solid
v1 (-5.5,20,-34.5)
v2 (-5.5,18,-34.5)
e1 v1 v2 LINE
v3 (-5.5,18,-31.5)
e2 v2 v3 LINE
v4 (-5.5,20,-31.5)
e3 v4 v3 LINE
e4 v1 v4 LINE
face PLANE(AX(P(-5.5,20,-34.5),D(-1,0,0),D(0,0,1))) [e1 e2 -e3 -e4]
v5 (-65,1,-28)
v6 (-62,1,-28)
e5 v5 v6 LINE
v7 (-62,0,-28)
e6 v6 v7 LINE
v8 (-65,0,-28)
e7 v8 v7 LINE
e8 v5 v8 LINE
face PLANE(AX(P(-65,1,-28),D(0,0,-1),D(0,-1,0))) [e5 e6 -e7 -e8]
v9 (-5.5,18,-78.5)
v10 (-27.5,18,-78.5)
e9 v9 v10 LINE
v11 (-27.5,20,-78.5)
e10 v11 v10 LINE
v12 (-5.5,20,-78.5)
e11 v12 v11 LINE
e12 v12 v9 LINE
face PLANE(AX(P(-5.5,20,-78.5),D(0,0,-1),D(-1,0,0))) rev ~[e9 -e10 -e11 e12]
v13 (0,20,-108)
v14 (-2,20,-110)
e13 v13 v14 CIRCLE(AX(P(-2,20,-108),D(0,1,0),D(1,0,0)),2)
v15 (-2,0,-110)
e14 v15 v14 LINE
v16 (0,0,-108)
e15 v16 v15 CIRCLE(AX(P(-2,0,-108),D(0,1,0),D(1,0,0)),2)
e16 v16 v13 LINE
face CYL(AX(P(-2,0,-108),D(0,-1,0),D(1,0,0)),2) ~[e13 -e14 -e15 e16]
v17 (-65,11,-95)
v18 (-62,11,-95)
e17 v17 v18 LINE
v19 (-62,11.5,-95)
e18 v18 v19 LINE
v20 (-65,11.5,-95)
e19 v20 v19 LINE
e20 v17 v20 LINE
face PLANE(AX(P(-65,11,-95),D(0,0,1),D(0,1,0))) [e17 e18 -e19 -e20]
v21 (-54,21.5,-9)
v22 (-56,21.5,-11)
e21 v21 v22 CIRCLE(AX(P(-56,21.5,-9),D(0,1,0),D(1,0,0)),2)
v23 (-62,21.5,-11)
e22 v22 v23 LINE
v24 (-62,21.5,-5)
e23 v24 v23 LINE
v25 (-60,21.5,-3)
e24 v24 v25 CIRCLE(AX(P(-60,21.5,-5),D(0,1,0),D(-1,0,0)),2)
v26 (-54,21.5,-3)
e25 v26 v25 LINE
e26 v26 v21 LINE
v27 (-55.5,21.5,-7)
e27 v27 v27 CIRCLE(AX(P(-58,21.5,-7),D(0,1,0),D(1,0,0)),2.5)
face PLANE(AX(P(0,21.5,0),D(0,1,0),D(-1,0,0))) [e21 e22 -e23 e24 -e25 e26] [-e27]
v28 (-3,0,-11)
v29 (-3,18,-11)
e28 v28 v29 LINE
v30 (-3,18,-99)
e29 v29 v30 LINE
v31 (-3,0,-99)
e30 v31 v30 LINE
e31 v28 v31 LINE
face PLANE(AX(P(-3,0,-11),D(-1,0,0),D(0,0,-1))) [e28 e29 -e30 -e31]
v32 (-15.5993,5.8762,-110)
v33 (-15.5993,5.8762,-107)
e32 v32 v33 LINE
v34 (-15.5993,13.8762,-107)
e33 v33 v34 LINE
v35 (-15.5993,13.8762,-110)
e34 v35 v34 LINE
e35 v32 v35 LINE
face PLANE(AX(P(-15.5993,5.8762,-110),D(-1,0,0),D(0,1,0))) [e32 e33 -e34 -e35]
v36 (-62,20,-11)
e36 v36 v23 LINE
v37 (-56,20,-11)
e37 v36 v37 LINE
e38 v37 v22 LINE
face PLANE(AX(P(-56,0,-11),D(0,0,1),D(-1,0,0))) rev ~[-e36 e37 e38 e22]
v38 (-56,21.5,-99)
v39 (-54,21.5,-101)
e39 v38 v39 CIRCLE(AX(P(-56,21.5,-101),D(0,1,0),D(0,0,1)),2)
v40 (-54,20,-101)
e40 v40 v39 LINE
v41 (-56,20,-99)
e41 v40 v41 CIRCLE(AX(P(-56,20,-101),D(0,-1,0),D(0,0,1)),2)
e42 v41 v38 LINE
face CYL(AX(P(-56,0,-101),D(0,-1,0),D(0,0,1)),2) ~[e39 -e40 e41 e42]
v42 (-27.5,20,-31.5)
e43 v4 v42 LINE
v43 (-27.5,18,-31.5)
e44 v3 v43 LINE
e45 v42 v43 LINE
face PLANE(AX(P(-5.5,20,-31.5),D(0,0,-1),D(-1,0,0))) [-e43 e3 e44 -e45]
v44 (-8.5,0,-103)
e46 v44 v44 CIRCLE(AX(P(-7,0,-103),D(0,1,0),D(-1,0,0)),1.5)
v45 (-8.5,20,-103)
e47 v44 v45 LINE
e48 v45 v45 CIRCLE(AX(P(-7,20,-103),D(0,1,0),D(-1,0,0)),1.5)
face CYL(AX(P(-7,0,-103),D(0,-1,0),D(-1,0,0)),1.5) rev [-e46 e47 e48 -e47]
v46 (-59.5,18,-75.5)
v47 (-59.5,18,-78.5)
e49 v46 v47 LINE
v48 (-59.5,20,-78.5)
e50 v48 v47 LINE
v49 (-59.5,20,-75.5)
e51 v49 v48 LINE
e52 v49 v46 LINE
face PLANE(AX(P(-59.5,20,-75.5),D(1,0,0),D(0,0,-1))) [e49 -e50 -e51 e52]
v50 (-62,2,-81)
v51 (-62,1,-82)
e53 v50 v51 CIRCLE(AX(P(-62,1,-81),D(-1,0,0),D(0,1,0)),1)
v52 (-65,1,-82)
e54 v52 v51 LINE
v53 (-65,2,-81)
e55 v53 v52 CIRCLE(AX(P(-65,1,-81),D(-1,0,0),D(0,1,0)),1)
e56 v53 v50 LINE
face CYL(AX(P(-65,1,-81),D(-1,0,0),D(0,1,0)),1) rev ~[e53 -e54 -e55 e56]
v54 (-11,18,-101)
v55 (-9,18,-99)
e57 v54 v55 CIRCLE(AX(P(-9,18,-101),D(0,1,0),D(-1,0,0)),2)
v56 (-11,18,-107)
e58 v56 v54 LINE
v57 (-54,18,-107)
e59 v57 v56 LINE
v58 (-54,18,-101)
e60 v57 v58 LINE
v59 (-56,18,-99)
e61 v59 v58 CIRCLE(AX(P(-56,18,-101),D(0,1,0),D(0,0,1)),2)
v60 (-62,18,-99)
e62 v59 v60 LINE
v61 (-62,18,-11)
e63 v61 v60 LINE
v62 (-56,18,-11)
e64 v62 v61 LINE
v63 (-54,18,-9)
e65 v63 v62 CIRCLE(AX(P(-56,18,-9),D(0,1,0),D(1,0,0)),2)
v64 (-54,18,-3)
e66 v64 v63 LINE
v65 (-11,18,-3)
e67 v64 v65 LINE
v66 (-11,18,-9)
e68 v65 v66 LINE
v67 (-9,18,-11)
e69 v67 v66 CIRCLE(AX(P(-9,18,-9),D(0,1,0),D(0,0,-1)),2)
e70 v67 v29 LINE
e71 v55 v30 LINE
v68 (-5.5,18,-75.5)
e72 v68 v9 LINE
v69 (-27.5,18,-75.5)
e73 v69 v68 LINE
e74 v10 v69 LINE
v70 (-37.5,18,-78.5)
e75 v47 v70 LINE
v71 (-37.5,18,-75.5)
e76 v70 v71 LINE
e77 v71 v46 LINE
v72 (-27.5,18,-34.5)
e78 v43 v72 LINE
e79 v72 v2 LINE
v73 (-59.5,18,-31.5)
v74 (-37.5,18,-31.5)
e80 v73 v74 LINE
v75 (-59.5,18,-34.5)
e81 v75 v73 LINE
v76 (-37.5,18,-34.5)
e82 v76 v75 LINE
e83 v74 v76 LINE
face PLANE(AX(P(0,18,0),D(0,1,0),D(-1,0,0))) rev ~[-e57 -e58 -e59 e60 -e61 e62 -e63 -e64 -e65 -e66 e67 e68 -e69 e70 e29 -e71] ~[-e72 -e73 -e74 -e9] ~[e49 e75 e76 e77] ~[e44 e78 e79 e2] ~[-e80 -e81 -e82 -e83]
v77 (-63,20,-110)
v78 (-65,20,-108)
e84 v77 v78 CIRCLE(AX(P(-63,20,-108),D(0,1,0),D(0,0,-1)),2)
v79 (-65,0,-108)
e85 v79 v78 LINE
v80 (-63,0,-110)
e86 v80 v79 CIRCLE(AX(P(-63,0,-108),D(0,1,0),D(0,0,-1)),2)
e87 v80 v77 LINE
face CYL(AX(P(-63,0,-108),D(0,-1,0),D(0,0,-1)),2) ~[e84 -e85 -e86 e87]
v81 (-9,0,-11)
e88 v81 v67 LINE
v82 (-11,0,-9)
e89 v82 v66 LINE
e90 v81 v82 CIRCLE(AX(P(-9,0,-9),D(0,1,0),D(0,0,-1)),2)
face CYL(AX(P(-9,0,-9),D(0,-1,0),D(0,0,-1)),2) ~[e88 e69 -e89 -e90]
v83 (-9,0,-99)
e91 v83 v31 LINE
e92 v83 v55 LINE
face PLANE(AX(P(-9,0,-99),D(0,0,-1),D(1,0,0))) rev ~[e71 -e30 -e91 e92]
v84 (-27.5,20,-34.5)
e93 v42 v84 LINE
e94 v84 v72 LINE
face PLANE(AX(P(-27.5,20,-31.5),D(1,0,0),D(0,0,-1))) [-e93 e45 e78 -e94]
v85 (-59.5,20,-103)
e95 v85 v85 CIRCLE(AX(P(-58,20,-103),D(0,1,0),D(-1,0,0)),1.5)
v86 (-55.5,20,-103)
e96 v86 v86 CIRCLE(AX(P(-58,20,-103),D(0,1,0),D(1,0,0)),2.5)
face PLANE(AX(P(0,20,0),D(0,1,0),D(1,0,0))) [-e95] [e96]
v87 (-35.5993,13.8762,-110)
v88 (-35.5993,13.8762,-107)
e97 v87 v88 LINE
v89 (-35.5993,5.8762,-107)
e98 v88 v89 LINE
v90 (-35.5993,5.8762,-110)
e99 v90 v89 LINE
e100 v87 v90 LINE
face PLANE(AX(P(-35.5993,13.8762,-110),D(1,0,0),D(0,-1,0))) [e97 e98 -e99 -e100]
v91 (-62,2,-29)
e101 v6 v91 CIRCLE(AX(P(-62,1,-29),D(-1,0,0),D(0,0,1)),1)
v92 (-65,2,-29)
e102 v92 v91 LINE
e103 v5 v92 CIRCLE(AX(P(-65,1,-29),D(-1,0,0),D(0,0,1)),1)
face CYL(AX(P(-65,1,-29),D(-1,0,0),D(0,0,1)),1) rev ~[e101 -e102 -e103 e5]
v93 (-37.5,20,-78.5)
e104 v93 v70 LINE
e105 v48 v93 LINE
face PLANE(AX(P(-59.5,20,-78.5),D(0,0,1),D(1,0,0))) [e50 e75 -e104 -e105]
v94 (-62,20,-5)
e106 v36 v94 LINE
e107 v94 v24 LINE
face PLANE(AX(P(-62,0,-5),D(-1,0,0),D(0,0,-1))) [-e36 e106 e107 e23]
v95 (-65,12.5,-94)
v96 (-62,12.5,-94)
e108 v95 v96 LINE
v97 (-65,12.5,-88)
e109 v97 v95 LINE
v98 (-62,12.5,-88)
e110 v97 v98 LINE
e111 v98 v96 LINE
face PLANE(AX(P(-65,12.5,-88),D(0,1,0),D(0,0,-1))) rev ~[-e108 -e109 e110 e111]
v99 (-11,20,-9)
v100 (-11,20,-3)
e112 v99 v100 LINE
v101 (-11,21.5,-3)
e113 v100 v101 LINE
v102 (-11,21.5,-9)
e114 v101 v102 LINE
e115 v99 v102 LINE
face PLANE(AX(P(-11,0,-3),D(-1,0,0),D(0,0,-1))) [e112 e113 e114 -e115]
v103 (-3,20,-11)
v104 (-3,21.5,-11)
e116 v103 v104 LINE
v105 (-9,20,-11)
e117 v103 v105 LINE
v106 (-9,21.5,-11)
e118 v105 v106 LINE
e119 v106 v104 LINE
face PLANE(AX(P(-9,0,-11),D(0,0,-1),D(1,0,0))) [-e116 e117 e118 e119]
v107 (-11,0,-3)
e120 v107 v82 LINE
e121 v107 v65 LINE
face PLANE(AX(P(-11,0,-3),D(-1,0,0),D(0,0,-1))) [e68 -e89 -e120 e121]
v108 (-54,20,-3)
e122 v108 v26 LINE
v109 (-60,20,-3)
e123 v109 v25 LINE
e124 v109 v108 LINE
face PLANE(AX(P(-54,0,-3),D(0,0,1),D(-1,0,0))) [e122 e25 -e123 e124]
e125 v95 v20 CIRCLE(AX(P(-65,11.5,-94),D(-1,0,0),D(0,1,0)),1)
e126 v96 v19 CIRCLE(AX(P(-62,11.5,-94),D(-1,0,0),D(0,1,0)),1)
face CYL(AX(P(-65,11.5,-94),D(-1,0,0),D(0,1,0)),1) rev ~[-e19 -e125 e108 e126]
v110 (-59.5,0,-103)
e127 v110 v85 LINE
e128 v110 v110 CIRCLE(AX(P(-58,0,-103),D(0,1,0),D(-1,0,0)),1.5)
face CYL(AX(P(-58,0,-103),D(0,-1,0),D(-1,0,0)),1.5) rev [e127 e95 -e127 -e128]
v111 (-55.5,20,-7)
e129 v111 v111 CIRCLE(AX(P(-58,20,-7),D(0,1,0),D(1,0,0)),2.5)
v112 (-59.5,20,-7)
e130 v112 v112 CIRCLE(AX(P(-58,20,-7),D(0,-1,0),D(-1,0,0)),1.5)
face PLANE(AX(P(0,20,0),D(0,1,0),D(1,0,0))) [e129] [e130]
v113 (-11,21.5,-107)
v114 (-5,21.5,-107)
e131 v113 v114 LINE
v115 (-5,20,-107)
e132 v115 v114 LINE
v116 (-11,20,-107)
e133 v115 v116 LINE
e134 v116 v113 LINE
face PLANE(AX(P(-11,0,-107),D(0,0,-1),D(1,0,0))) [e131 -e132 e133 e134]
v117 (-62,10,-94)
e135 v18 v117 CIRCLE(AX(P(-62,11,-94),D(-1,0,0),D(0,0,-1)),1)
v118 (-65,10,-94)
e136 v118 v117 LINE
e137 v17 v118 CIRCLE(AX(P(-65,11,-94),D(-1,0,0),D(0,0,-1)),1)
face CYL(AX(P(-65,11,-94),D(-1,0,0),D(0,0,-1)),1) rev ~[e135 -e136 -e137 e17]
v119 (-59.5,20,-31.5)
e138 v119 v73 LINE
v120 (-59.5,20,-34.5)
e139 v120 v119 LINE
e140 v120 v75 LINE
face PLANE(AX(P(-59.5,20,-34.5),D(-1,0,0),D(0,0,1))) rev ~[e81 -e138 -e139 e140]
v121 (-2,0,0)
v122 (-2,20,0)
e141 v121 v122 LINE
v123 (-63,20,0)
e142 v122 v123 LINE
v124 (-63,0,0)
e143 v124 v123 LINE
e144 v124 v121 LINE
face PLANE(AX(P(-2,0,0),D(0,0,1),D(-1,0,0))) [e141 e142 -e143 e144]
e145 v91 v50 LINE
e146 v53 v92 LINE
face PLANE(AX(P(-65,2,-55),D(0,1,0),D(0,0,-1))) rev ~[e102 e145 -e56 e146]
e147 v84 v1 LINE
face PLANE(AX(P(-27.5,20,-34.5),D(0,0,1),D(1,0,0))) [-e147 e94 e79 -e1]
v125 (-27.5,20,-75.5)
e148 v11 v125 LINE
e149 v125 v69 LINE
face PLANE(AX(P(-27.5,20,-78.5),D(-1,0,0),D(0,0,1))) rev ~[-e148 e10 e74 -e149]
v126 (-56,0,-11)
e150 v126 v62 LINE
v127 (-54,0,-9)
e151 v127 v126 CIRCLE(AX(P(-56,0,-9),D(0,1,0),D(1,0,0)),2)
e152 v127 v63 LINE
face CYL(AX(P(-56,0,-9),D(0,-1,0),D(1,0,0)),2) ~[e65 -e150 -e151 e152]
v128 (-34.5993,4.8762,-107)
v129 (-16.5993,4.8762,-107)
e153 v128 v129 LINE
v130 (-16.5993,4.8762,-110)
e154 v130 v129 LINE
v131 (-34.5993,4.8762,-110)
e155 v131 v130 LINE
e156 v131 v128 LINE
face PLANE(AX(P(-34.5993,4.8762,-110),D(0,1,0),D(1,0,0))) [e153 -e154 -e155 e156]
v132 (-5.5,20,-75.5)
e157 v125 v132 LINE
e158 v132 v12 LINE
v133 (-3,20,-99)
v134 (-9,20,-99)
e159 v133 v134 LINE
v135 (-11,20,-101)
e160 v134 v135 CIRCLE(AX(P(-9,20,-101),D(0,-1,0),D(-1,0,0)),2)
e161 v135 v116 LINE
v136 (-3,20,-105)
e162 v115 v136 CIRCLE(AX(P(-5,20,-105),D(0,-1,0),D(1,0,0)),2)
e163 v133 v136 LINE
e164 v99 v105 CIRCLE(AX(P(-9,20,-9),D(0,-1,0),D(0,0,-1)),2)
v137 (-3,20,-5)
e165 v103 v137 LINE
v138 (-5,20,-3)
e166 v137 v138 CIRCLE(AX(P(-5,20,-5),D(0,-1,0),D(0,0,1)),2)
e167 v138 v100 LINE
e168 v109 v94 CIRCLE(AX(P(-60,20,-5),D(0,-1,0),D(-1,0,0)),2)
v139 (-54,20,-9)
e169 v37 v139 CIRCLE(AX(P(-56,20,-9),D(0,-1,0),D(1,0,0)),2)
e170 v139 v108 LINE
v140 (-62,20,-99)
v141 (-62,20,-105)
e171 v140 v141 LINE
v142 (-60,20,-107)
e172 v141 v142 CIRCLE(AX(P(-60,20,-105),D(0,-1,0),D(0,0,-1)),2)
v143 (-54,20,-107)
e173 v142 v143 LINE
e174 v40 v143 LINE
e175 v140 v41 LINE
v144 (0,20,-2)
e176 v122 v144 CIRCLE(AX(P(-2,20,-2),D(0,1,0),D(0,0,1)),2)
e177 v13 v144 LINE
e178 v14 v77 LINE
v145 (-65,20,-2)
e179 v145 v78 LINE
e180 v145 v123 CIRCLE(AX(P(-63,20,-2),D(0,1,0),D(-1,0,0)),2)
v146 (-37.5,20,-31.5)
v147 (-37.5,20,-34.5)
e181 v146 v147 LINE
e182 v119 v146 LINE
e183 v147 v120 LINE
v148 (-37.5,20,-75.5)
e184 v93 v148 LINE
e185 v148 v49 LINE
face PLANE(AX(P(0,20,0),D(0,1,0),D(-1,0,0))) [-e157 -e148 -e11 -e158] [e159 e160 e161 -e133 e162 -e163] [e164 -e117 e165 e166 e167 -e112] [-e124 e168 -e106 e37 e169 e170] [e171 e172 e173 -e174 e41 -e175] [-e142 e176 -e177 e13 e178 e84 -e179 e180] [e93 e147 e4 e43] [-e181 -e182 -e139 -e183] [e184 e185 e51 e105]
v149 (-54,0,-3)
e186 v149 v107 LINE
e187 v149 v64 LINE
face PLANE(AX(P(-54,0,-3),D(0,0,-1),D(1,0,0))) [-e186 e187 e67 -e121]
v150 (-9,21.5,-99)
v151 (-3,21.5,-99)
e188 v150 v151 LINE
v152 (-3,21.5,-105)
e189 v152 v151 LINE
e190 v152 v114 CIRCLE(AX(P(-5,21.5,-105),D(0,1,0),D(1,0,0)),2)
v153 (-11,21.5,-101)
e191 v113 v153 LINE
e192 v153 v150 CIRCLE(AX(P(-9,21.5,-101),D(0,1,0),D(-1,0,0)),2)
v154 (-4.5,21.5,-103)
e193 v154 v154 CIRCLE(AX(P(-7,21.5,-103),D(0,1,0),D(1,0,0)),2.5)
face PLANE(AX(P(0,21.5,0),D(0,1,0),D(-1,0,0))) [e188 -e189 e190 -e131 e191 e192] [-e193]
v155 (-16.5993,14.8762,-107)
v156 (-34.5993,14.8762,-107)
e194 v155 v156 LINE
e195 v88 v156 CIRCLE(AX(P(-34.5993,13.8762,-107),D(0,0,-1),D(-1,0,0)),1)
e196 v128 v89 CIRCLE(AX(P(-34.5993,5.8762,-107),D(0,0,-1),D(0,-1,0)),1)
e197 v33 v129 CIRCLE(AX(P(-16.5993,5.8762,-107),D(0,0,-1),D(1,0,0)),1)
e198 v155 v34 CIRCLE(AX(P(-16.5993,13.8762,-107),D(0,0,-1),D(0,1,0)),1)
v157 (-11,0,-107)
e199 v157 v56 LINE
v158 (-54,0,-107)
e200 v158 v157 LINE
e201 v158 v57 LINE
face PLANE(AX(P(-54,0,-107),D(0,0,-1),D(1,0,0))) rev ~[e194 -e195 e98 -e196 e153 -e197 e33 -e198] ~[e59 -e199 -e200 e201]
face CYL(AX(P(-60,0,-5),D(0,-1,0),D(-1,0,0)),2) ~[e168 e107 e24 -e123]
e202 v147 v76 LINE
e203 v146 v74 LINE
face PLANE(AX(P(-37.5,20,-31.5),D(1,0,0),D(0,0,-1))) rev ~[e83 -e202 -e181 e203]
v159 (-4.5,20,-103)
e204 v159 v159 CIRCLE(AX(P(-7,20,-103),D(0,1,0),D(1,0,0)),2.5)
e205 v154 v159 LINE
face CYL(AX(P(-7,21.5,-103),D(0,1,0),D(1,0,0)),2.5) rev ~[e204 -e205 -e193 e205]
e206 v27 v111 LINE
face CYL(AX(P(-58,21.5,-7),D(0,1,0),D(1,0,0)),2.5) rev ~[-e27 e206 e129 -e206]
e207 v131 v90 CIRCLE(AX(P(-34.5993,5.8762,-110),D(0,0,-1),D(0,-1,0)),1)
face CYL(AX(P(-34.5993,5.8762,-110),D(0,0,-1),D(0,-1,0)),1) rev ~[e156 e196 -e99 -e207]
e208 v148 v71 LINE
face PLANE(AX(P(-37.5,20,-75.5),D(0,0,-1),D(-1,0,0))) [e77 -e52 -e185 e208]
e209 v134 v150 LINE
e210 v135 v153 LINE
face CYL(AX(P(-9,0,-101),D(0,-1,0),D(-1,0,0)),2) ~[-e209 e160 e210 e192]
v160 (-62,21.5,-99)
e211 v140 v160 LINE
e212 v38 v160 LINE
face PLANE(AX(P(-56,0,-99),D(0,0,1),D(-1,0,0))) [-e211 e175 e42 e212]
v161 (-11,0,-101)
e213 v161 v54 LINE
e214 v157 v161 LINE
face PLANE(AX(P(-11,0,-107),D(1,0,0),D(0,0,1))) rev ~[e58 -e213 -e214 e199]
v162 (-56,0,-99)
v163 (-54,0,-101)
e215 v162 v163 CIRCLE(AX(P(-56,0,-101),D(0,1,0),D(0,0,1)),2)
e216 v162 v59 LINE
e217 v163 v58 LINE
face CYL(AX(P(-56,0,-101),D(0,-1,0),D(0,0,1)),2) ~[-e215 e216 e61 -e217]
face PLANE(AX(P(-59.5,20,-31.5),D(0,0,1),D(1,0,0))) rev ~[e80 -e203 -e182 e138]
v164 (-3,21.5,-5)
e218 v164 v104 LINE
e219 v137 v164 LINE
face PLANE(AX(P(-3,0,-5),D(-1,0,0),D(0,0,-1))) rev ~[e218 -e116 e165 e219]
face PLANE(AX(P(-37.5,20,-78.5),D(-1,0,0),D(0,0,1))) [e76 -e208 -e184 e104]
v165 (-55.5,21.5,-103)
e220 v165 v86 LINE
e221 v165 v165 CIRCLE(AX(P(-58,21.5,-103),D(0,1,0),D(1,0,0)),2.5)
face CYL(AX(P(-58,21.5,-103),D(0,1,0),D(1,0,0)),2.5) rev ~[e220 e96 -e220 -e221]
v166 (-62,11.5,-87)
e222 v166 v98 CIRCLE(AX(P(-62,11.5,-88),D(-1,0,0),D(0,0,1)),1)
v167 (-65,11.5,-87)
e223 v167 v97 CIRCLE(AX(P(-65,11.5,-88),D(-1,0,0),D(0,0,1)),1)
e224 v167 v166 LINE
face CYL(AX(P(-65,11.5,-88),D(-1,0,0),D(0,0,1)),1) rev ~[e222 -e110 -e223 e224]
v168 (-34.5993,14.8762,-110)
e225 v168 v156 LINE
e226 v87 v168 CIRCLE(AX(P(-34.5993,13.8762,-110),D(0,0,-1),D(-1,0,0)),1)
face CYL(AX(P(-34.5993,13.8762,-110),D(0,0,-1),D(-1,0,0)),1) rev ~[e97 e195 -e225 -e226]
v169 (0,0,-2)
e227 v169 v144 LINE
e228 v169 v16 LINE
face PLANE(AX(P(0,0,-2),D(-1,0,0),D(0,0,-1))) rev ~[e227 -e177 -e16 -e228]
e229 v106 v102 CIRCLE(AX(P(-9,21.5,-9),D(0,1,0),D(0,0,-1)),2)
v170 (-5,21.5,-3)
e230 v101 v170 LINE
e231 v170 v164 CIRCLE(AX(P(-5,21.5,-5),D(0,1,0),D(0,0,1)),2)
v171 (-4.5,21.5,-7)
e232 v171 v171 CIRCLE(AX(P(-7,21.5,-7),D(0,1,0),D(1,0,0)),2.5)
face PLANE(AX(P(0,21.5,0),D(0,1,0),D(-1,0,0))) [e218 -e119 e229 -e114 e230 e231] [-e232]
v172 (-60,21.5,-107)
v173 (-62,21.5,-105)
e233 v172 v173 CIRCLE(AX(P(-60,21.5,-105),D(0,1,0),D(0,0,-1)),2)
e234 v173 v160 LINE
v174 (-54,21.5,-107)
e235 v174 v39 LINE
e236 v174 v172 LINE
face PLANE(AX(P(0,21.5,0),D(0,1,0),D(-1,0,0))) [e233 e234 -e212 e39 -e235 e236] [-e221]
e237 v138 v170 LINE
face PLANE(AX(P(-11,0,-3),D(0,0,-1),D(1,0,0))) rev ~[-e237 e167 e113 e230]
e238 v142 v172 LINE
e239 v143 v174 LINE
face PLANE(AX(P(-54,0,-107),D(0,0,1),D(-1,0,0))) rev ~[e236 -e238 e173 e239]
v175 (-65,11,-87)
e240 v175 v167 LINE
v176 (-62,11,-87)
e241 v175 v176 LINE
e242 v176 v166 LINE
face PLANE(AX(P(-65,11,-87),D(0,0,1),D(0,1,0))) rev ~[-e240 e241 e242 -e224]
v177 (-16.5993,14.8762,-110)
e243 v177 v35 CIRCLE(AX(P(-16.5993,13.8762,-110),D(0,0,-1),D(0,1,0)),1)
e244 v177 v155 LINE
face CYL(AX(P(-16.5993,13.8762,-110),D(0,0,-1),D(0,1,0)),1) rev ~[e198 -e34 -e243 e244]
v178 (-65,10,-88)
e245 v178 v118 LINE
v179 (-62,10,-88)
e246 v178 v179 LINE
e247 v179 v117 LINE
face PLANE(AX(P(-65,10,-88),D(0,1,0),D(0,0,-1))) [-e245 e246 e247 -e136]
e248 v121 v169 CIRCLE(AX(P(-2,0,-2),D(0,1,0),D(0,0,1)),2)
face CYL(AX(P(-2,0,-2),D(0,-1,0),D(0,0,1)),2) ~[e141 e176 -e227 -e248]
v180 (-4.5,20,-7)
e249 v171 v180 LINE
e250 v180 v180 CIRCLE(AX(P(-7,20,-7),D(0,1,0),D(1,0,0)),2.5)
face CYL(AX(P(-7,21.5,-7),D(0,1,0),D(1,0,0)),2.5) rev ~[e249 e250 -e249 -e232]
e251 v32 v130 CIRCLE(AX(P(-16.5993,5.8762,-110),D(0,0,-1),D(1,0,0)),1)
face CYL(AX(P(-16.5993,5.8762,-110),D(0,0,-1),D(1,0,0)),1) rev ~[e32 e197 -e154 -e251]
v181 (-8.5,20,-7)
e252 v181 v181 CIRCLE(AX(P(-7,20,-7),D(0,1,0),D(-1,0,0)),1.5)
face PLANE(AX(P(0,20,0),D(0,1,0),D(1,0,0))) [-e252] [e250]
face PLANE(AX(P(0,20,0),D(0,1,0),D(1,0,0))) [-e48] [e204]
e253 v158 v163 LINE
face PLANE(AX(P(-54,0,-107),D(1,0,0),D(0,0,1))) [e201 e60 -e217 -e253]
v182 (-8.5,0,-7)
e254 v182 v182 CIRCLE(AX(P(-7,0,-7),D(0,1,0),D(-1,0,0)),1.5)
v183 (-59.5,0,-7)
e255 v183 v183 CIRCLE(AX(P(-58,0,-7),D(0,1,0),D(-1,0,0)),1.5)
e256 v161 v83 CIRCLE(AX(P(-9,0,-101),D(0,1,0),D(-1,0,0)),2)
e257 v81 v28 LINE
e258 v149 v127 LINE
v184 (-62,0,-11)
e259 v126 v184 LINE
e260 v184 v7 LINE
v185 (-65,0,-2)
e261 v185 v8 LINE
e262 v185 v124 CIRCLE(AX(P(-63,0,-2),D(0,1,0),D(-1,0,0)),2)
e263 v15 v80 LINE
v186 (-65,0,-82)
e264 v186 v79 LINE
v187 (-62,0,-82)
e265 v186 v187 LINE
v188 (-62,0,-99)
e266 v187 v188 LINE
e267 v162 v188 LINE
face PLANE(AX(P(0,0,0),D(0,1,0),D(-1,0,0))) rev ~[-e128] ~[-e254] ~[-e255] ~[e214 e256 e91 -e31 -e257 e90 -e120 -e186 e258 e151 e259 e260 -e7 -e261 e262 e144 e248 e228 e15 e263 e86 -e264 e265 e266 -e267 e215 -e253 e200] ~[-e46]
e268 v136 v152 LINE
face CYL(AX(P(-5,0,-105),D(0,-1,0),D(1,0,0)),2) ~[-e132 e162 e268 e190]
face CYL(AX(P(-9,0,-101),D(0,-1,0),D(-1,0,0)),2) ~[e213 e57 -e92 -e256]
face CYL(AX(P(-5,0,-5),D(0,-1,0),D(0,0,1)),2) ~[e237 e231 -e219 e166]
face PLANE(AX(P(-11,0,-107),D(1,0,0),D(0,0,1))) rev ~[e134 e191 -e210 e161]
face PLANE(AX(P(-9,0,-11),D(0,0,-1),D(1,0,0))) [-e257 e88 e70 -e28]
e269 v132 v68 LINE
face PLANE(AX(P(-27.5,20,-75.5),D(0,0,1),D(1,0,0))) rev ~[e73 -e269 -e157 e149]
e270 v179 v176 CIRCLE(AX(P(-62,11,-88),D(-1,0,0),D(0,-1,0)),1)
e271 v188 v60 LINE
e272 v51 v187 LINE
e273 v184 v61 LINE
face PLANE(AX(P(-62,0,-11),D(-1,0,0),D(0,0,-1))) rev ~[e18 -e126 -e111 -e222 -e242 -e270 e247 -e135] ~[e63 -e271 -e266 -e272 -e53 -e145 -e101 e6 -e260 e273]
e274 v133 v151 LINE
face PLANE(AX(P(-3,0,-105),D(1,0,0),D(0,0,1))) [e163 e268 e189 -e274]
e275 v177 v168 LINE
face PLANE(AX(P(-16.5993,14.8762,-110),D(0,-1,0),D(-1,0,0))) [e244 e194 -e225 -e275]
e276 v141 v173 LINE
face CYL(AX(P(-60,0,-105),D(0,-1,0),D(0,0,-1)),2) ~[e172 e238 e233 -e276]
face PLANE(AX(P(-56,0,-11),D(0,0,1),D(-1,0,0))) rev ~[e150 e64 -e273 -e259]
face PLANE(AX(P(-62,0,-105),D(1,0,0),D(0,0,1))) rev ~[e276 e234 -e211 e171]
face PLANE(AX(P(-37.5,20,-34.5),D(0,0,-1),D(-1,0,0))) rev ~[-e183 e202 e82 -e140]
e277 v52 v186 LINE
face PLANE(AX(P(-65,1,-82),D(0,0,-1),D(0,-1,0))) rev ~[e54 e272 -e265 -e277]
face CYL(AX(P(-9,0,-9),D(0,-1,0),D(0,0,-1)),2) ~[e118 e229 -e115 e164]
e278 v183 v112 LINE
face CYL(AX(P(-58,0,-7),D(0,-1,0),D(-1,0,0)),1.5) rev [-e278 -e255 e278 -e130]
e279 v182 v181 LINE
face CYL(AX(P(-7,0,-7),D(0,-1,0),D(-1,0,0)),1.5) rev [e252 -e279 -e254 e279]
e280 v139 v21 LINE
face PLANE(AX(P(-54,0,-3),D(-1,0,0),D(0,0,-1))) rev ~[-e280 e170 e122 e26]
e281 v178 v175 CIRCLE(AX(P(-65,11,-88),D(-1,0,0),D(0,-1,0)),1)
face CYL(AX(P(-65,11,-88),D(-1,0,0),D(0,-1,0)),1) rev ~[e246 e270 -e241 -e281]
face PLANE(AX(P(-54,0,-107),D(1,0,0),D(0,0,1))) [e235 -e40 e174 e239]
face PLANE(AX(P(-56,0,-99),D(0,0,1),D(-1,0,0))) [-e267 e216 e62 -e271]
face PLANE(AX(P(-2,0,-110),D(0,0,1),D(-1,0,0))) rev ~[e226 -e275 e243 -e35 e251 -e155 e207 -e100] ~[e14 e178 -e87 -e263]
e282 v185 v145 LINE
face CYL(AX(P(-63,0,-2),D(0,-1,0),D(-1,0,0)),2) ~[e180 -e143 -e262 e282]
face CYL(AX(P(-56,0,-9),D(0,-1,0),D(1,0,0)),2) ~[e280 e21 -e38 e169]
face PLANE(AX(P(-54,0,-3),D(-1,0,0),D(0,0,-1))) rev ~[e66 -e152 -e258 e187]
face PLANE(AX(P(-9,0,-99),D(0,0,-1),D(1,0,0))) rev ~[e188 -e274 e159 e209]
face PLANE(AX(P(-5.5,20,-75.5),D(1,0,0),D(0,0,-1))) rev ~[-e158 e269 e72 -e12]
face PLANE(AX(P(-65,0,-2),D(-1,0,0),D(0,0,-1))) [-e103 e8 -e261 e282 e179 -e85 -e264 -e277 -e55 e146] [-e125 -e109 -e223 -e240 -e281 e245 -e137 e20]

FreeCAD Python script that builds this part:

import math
import FreeCAD as App
import Part
import Sketcher

doc = App.newDocument("Part")
body = doc.addObject("PartDesign::Body", "Body")

sketch1 = body.newObject("Sketcher::SketchObject", "Sketch")
sketch1.AttachmentSupport = (doc.getObject("XZ_Plane"), [""])
sketch1.MapMode = "FlatFace"
sketch1.addGeometry([
    Part.ArcOfCircle(Part.Circle(App.Vector(-2, -2, 0), App.Vector(0, 0, 1), 2), math.radians(0), math.radians(90)),
    Part.LineSegment(App.Vector(0, -2, 0), App.Vector(0, -108, 0)),
    Part.ArcOfCircle(Part.Circle(App.Vector(-2, -108, 0), App.Vector(0, 0, 1), 2), math.radians(-90), math.radians(0)),
    Part.LineSegment(App.Vector(-2, -110, 0), App.Vector(-63, -110, 0)),
    Part.ArcOfCircle(Part.Circle(App.Vector(-63, -108, 0), App.Vector(0, 0, 1), 2), math.radians(180), math.radians(270)),
    Part.LineSegment(App.Vector(-65, -108, 0), App.Vector(-65, -2, 0)),
    Part.ArcOfCircle(Part.Circle(App.Vector(-63, -2, 0), App.Vector(0, 0, 1), 2), math.radians(90), math.radians(180)),
    Part.LineSegment(App.Vector(-63, 0, 0), App.Vector(-2, 0, 0)),
], False)
sketch1.addConstraint([
    Sketcher.Constraint("Tangent", 0, 1, 1, 1),
    Sketcher.Constraint("Tangent", 1, 2, 2, 2),
    Sketcher.Constraint("Tangent", 2, 1, 3, 1),
    Sketcher.Constraint("Tangent", 3, 2, 4, 2),
    Sketcher.Constraint("Tangent", 4, 1, 5, 1),
    Sketcher.Constraint("Tangent", 5, 2, 6, 2),
    Sketcher.Constraint("Tangent", 6, 1, 7, 1),
    Sketcher.Constraint("Tangent", 7, 2, 0, 2),
    Sketcher.Constraint("Vertical", 1),
    Sketcher.Constraint("Horizontal", 3),
    Sketcher.Constraint("Vertical", 5),
    Sketcher.Constraint("Horizontal", 7),
    Sketcher.Constraint("Equal", 0, 2),
    Sketcher.Constraint("Equal", 2, 4),
    Sketcher.Constraint("Equal", 4, 6),
    Sketcher.Constraint("PointOnObject", 0, 1, -2),
    Sketcher.Constraint("PointOnObject", 6, 1, -1),
    Sketcher.Constraint("Radius", 0, 2.0),
    Sketcher.Constraint("DistanceY", 2, 1, -1, 1, 110.0),
    Sketcher.Constraint("DistanceX", 4, 1, -1, 1, 65.0),
])
pad1 = body.newObject("PartDesign::Pad", "Pad")
pad1.Profile = sketch1
pad1.Length = 20
pad1.Reversed = True

sketch2 = body.newObject("Sketcher::SketchObject", "Sketch001")
sketch2.AttachmentSupport = (doc.getObject("XZ_Plane"), [""])
sketch2.MapMode = "FlatFace"
sketch2.addGeometry([
    Part.LineSegment(App.Vector(-54, -3, 0), App.Vector(-11, -3, 0)),
    Part.LineSegment(App.Vector(-11, -3, 0), App.Vector(-11, -9, 0)),
    Part.ArcOfCircle(Part.Circle(App.Vector(-9, -9, 0), App.Vector(0, 0, 1), 2), math.radians(180), math.radians(270)),
    Part.LineSegment(App.Vector(-9, -11, 0), App.Vector(-3, -11, 0)),
    Part.LineSegment(App.Vector(-3, -11, 0), App.Vector(-3, -99, 0)),
    Part.LineSegment(App.Vector(-3, -99, 0), App.Vector(-9, -99, 0)),
    Part.ArcOfCircle(Part.Circle(App.Vector(-9, -101, 0), App.Vector(0, 0, 1), 2), math.radians(90), math.radians(180)),
    Part.LineSegment(App.Vector(-11, -101, 0), App.Vector(-11, -107, 0)),
    Part.LineSegment(App.Vector(-11, -107, 0), App.Vector(-54, -107, 0)),
    Part.LineSegment(App.Vector(-54, -107, 0), App.Vector(-54, -101, 0)),
    Part.ArcOfCircle(Part.Circle(App.Vector(-56, -101, 0), App.Vector(0, 0, 1), 2), math.radians(0), math.radians(90)),
    Part.LineSegment(App.Vector(-56, -99, 0), App.Vector(-62, -99, 0)),
    Part.LineSegment(App.Vector(-62, -99, 0), App.Vector(-62, -11, 0)),
    Part.LineSegment(App.Vector(-62, -11, 0), App.Vector(-56, -11, 0)),
    Part.ArcOfCircle(Part.Circle(App.Vector(-56, -9, 0), App.Vector(0, 0, 1), 2), math.radians(-90), math.radians(0)),
    Part.LineSegment(App.Vector(-54, -9, 0), App.Vector(-54, -3, 0)),
], False)
sketch2.addConstraint([
    Sketcher.Constraint("Coincident", 0, 2, 1, 1),
    Sketcher.Constraint("Tangent", 1, 2, 2, 1),
    Sketcher.Constraint("Tangent", 2, 2, 3, 1),
    Sketcher.Constraint("Coincident", 3, 2, 4, 1),
    Sketcher.Constraint("Coincident", 4, 2, 5, 1),
    Sketcher.Constraint("Tangent", 5, 2, 6, 1),
    Sketcher.Constraint("Tangent", 6, 2, 7, 1),
    Sketcher.Constraint("Coincident", 7, 2, 8, 1),
    Sketcher.Constraint("Coincident", 8, 2, 9, 1),
    Sketcher.Constraint("Tangent", 9, 2, 10, 1),
    Sketcher.Constraint("Tangent", 10, 2, 11, 1),
    Sketcher.Constraint("Coincident", 11, 2, 12, 1),
    Sketcher.Constraint("Coincident", 12, 2, 13, 1),
    Sketcher.Constraint("Tangent", 13, 2, 14, 1),
    Sketcher.Constraint("Tangent", 14, 2, 15, 1),
    Sketcher.Constraint("Coincident", 15, 2, 0, 1),
    Sketcher.Constraint("Horizontal", 0),
    Sketcher.Constraint("Vertical", 1),
    Sketcher.Constraint("Horizontal", 3),
    Sketcher.Constraint("Vertical", 4),
    Sketcher.Constraint("Horizontal", 5),
    Sketcher.Constraint("Vertical", 7),
    Sketcher.Constraint("Horizontal", 8),
    Sketcher.Constraint("Vertical", 9),
    Sketcher.Constraint("Horizontal", 11),
    Sketcher.Constraint("Vertical", 12),
    Sketcher.Constraint("Horizontal", 13),
    Sketcher.Constraint("Vertical", 15),
    Sketcher.Constraint("Equal", 2, 6),
    Sketcher.Constraint("Equal", 6, 10),
    Sketcher.Constraint("Equal", 10, 14),
    Sketcher.Constraint("Horizontal", 6, 3, 10, 3),
    Sketcher.Constraint("Horizontal", 2, 3, 14, 3),
    Sketcher.Constraint("Vertical", 2, 3, 6, 3),
    Sketcher.Constraint("Vertical", 10, 3, 14, 3),
    Sketcher.Constraint("Equal", 5, 11),
    Sketcher.Constraint("Equal", 13, 1),
    Sketcher.Constraint("Equal", 1, 7),
    Sketcher.Constraint("Radius", 2, 2.0),
    Sketcher.Constraint("DistanceY", 0, 2, -1, 1, 3.0),
    Sketcher.Constraint("DistanceX", 3, 2, -1, 1, 3.0),
    Sketcher.Constraint("DistanceX", 0, 1, 0, 2, 43.0),
    Sketcher.Constraint("DistanceX", 3, 1, 3, 2, 6.0),
    Sketcher.Constraint("DistanceY", 4, 2, 4, 1, 88.0),
])
pocket1 = body.newObject("PartDesign::Pocket", "Pocket")
pocket1.Profile = sketch2
pocket1.Length = 18

sketch3 = body.newObject("Sketcher::SketchObject", "Sketch002")
sketch3.AttachmentSupport = (doc.getObject("XZ_Plane"), [""])
sketch3.MapMode = "FlatFace"
sketch3.addGeometry([
    Part.Circle(App.Vector(-7, -7, 0), App.Vector(0, 0, 1), 1.5),
    Part.Circle(App.Vector(-7, -103, 0), App.Vector(0, 0, 1), 1.5),
    Part.Circle(App.Vector(-58, -7, 0), App.Vector(0, 0, 1), 1.5),
    Part.Circle(App.Vector(-58, -103, 0), App.Vector(0, 0, 1), 1.5),
], False)
sketch3.addConstraint([
    Sketcher.Constraint("Equal", 0, 1),
    Sketcher.Constraint("Equal", 1, 2),
    Sketcher.Constraint("Equal", 2, 3),
    Sketcher.Constraint("Horizontal", 0, 3, 2, 3),
    Sketcher.Constraint("Horizontal", 1, 3, 3, 3),
    Sketcher.Constraint("Vertical", 0, 3, 1, 3),
    Sketcher.Constraint("Vertical", 2, 3, 3, 3),
    Sketcher.Constraint("Diameter", 0, 3.0),
    Sketcher.Constraint("DistanceX", 0, 3, -1, 1, 7.0),
    Sketcher.Constraint("DistanceY", 0, 3, -1, 1, 7.0),
    Sketcher.Constraint("DistanceY", 1, 3, -1, 1, 103.0),
    Sketcher.Constraint("DistanceX", 2, 3, -1, 1, 58.0),
])
pocket2 = body.newObject("PartDesign::Pocket", "Pocket001")
pocket2.Profile = sketch3
pocket2.Length = 20

sketch4 = body.newObject("Sketcher::SketchObject", "Sketch003")
sketch4.AttachmentSupport = (doc.getObject("XZ_Plane"), [""])
sketch4.MapMode = "FlatFace"
sketch4.addGeometry([
    Part.LineSegment(App.Vector(-11, -3, 0), App.Vector(-5, -3, 0)),
    Part.ArcOfCircle(Part.Circle(App.Vector(-5, -5, 0), App.Vector(0, 0, 1), 2), math.radians(0), math.radians(90)),
    Part.LineSegment(App.Vector(-3, -5, 0), App.Vector(-3, -11, 0)),
    Part.LineSegment(App.Vector(-3, -11, 0), App.Vector(-9, -11, 0)),
    Part.ArcOfCircle(Part.Circle(App.Vector(-9, -9, 0), App.Vector(0, 0, 1), 2), math.radians(180), math.radians(270)),
    Part.LineSegment(App.Vector(-11, -9, 0), App.Vector(-11, -3, 0)),
    Part.Circle(App.Vector(-7, -7, 0), App.Vector(0, 0, 1), 1.5),
    Part.LineSegment(App.Vector(-60, -3, 0), App.Vector(-54, -3, 0)),
    Part.LineSegment(App.Vector(-54, -3, 0), App.Vector(-54, -9, 0)),
    Part.ArcOfCircle(Part.Circle(App.Vector(-56, -9, 0), App.Vector(0, 0, 1), 2), math.radians(-90), math.radians(0)),
    Part.LineSegment(App.Vector(-56, -11, 0), App.Vector(-62, -11, 0)),
    Part.LineSegment(App.Vector(-62, -11, 0), App.Vector(-62, -5, 0)),
    Part.ArcOfCircle(Part.Circle(App.Vector(-60, -5, 0), App.Vector(0, 0, 1), 2), math.radians(90), math.radians(180)),
    Part.Circle(App.Vector(-58, -7, 0), App.Vector(0, 0, 1), 1.5),
    Part.LineSegment(App.Vector(-9, -99, 0), App.Vector(-3, -99, 0)),
    Part.LineSegment(App.Vector(-3, -99, 0), App.Vector(-3, -105, 0)),
    Part.ArcOfCircle(Part.Circle(App.Vector(-5, -105, 0), App.Vector(0, 0, 1), 2), math.radians(-90), math.radians(0)),
    Part.LineSegment(App.Vector(-5, -107, 0), App.Vector(-11, -107, 0)),
    Part.LineSegment(App.Vector(-11, -107, 0), App.Vector(-11, -101, 0)),
    Part.ArcOfCircle(Part.Circle(App.Vector(-9, -101, 0), App.Vector(0, 0, 1), 2), math.radians(90), math.radians(180)),
    Part.Circle(App.Vector(-7, -103, 0), App.Vector(0, 0, 1), 1.5),
    Part.LineSegment(App.Vector(-62, -105, 0), App.Vector(-62, -99, 0)),
    Part.LineSegment(App.Vector(-62, -99, 0), App.Vector(-56, -99, 0)),
    Part.ArcOfCircle(Part.Circle(App.Vector(-56, -101, 0), App.Vector(0, 0, 1), 2), math.radians(0), math.radians(90)),
    Part.LineSegment(App.Vector(-54, -101, 0), App.Vector(-54, -107, 0)),
    Part.LineSegment(App.Vector(-54, -107, 0), App.Vector(-60, -107, 0)),
    Part.ArcOfCircle(Part.Circle(App.Vector(-60, -105, 0), App.Vector(0, 0, 1), 2), math.radians(180), math.radians(270)),
    Part.Circle(App.Vector(-58, -103, 0), App.Vector(0, 0, 1), 1.5),
], False)
sketch4.addConstraint([
    Sketcher.Constraint("Tangent", 0, 2, 1, 2),
    Sketcher.Constraint("Tangent", 1, 1, 2, 1),
    Sketcher.Constraint("Coincident", 2, 2, 3, 1),
    Sketcher.Constraint("Tangent", 3, 2, 4, 2),
    Sketcher.Constraint("Tangent", 4, 1, 5, 1),
    Sketcher.Constraint("Coincident", 5, 2, 0, 1),
    Sketcher.Constraint("Coincident", 7, 2, 8, 1),
    Sketcher.Constraint("Tangent", 8, 2, 9, 2),
    Sketcher.Constraint("Tangent", 9, 1, 10, 1),
    Sketcher.Constraint("Coincident", 10, 2, 11, 1),
    Sketcher.Constraint("Tangent", 11, 2, 12, 2),
    Sketcher.Constraint("Tangent", 12, 1, 7, 1),
    Sketcher.Constraint("Coincident", 14, 2, 15, 1),
    Sketcher.Constraint("Tangent", 15, 2, 16, 2),
    Sketcher.Constraint("Tangent", 16, 1, 17, 1),
    Sketcher.Constraint("Coincident", 17, 2, 18, 1),
    Sketcher.Constraint("Tangent", 18, 2, 19, 2),
    Sketcher.Constraint("Tangent", 19, 1, 14, 1),
    Sketcher.Constraint("Coincident", 21, 2, 22, 1),
    Sketcher.Constraint("Tangent", 22, 2, 23, 2),
    Sketcher.Constraint("Tangent", 23, 1, 24, 1),
    Sketcher.Constraint("Coincident", 24, 2, 25, 1),
    Sketcher.Constraint("Tangent", 25, 2, 26, 2),
    Sketcher.Constraint("Tangent", 26, 1, 21, 1),
    Sketcher.Constraint("Horizontal", 0),
    Sketcher.Constraint("Vertical", 2),
    Sketcher.Constraint("Horizontal", 3),
    Sketcher.Constraint("Vertical", 5),
    Sketcher.Constraint("Horizontal", 7),
    Sketcher.Constraint("Vertical", 8),
    Sketcher.Constraint("Horizontal", 10),
    Sketcher.Constraint("Vertical", 11),
    Sketcher.Constraint("Horizontal", 14),
    Sketcher.Constraint("Vertical", 15),
    Sketcher.Constraint("Horizontal", 17),
    Sketcher.Constraint("Vertical", 18),
    Sketcher.Constraint("Vertical", 21),
    Sketcher.Constraint("Horizontal", 22),
    Sketcher.Constraint("Vertical", 24),
    Sketcher.Constraint("Horizontal", 25),
    Sketcher.Constraint("Equal", 1, 4),
    Sketcher.Constraint("Equal", 4, 9),
    Sketcher.Constraint("Equal", 9, 12),
    Sketcher.Constraint("Equal", 6, 13),
    Sketcher.Constraint("Equal", 12, 16),
    Sketcher.Constraint("Equal", 16, 19),
    Sketcher.Constraint("Equal", 13, 20),
    Sketcher.Constraint("Equal", 19, 23),
    Sketcher.Constraint("Equal", 23, 26),
    Sketcher.Constraint("Equal", 20, 27),
    Sketcher.Constraint("Horizontal", 4, 3, 9, 3),
    Sketcher.Constraint("Horizontal", 1, 3, 12, 3),
    Sketcher.Constraint("Horizontal", 6, 3, 13, 3),
    Sketcher.Constraint("Horizontal", 19, 3, 23, 3),
    Sketcher.Constraint("Horizontal", 16, 3, 26, 3),
    Sketcher.Constraint("Horizontal", 20, 3, 27, 3),
    Sketcher.Constraint("Vertical", 1, 3, 16, 3),
    Sketcher.Constraint("Vertical", 4, 3, 19, 3),
    Sketcher.Constraint("Vertical", 6, 3, 20, 3),
    Sketcher.Constraint("Vertical", 9, 3, 23, 3),
    Sketcher.Constraint("Vertical", 12, 3, 26, 3),
    Sketcher.Constraint("Vertical", 13, 3, 27, 3),
    Sketcher.Constraint("Equal", 3, 7),
    Sketcher.Constraint("Equal", 25, 2),
    Sketcher.Constraint("Equal", 11, 15),
    Sketcher.Constraint("Diameter", 6, 3.0),
    Sketcher.Constraint("Radius", 1, 2.0),
    Sketcher.Constraint("DistanceY", 0, 2, -1, 1, 3.0),
    Sketcher.Constraint("DistanceX", 1, 1, -1, 1, 3.0),
    Sketcher.Constraint("DistanceX", 6, 3, 1, 3, 2.0),
    Sketcher.Constraint("DistanceY", 6, 3, 1, 3, 2.0),
    Sketcher.Constraint("DistanceX", 4, 3, 6, 3, 2.0),
    Sketcher.Constraint("DistanceX", 13, 3, 9, 3, 2.0),
    Sketcher.Constraint("DistanceY", 16, 3, 20, 3, 2.0),
    Sketcher.Constraint("DistanceX", 9, 3, -1, 1, 56.0),
    Sketcher.Constraint("DistanceY", 16, 3, -1, 1, 105.0),
])
pad2 = body.newObject("PartDesign::Pad", "Pad001")
pad2.Profile = sketch4
pad2.Length = 21.5
pad2.Reversed = True

sketch5 = body.newObject("Sketcher::SketchObject", "Sketch004")
sketch5.AttachmentSupport = (doc.getObject("XZ_Plane"), [""])
sketch5.MapMode = "FlatFace"
sketch5.AttachmentOffset = App.Placement(App.Vector(0, 0, -21.5), App.Rotation())
sketch5.addGeometry([
    Part.Circle(App.Vector(-7, -7, 0), App.Vector(0, 0, 1), 2.5),
    Part.Circle(App.Vector(-7, -7, 0), App.Vector(0, 0, 1), 1.5),
    Part.Circle(App.Vector(-7, -103, 0), App.Vector(0, 0, 1), 2.5),
    Part.Circle(App.Vector(-7, -103, 0), App.Vector(0, 0, 1), 1.5),
    Part.Circle(App.Vector(-58, -103, 0), App.Vector(0, 0, 1), 2.5),
    Part.Circle(App.Vector(-58, -103, 0), App.Vector(0, 0, 1), 1.5),
    Part.Circle(App.Vector(-58, -7, 0), App.Vector(0, 0, 1), 2.5),
], False)
sketch5.addConstraint([
    Sketcher.Constraint("Coincident", 1, 3, 0, 3),
    Sketcher.Constraint("Coincident", 3, 3, 2, 3),
    Sketcher.Constraint("Coincident", 5, 3, 4, 3),
    Sketcher.Constraint("Equal", 0, 2),
    Sketcher.Constraint("Equal", 1, 3),
    Sketcher.Constraint("Equal", 2, 4),
    Sketcher.Constraint("Equal", 3, 5),
    Sketcher.Constraint("Equal", 4, 6),
    Sketcher.Constraint("Horizontal", 3, 3, 4, 3),
    Sketcher.Constraint("Horizontal", 1, 3, 6, 3),
    Sketcher.Constraint("Vertical", 1, 3, 2, 3),
    Sketcher.Constraint("Vertical", 5, 3, 6, 3),
    Sketcher.Constraint("Diameter", 0, 5.0),
    Sketcher.Constraint("Diameter", 1, 3.0),
    Sketcher.Constraint("DistanceX", 0, 3, -1, 1, 7.0),
    Sketcher.Constraint("DistanceY", 0, 3, -1, 1, 7.0),
    Sketcher.Constraint("DistanceY", 2, 3, -1, 1, 103.0),
    Sketcher.Constraint("DistanceX", 4, 3, -1, 1, 58.0),
])
pocket3 = body.newObject("PartDesign::Pocket", "Pocket002")
pocket3.Profile = sketch5
pocket3.Length = 1.5
pocket3.Reversed = True

sketch6 = body.newObject("Sketcher::SketchObject", "Sketch005")
sketch6.AttachmentSupport = (doc.getObject("YZ_Plane"), [""])
sketch6.MapMode = "FlatFace"
sketch6.AttachmentOffset = App.Placement(App.Vector(0, 0, -65), App.Rotation())
sketch6.addGeometry([
    Part.LineSegment(App.Vector(0, -82, 0), App.Vector(0, -28, 0)),
    Part.LineSegment(App.Vector(0, -28, 0), App.Vector(1, -28, 0)),
    Part.ArcOfCircle(Part.Circle(App.Vector(1, -29, 0), App.Vector(0, 0, 1), 1), math.radians(0), math.radians(90)),
    Part.LineSegment(App.Vector(2, -29, 0), App.Vector(2, -81, 0)),
    Part.ArcOfCircle(Part.Circle(App.Vector(1, -81, 0), App.Vector(0, 0, 1), 1), math.radians(-90), math.radians(0)),
    Part.LineSegment(App.Vector(1, -82, 0), App.Vector(0, -82, 0)),
    Part.LineSegment(App.Vector(10, -94, 0), App.Vector(10, -88, 0)),
    Part.ArcOfCircle(Part.Circle(App.Vector(11, -88, 0), App.Vector(0, 0, 1), 1), math.radians(90), math.radians(180)),
    Part.LineSegment(App.Vector(11, -87, 0), App.Vector(11.5, -87, 0)),
    Part.ArcOfCircle(Part.Circle(App.Vector(11.5, -88, 0), App.Vector(0, 0, 1), 1), math.radians(0), math.radians(90)),
    Part.LineSegment(App.Vector(12.5, -88, 0), App.Vector(12.5, -94, 0)),
    Part.ArcOfCircle(Part.Circle(App.Vector(11.5, -94, 0), App.Vector(0, 0, 1), 1), math.radians(-90), math.radians(0)),
    Part.LineSegment(App.Vector(11.5, -95, 0), App.Vector(11, -95, 0)),
    Part.ArcOfCircle(Part.Circle(App.Vector(11, -94, 0), App.Vector(0, 0, 1), 1), math.radians(180), math.radians(270)),
], False)
sketch6.addConstraint([
    Sketcher.Constraint("Coincident", 0, 2, 1, 1),
    Sketcher.Constraint("Tangent", 1, 2, 2, 2),
    Sketcher.Constraint("Tangent", 2, 1, 3, 1),
    Sketcher.Constraint("Tangent", 3, 2, 4, 2),
    Sketcher.Constraint("Tangent", 4, 1, 5, 1),
    Sketcher.Constraint("Coincident", 5, 2, 0, 1),
    Sketcher.Constraint("Tangent", 6, 2, 7, 2),
    Sketcher.Constraint("Tangent", 7, 1, 8, 1),
    Sketcher.Constraint("Tangent", 8, 2, 9, 2),
    Sketcher.Constraint("Tangent", 9, 1, 10, 1),
    Sketcher.Constraint("Tangent", 10, 2, 11, 2),
    Sketcher.Constraint("Tangent", 11, 1, 12, 1),
    Sketcher.Constraint("Tangent", 12, 2, 13, 2),
    Sketcher.Constraint("Tangent", 13, 1, 6, 1),
    Sketcher.Constraint("Vertical", 0),
    Sketcher.Constraint("Horizontal", 1),
    Sketcher.Constraint("Vertical", 3),
    Sketcher.Constraint("Horizontal", 5),
    Sketcher.Constraint("Vertical", 6),
    Sketcher.Constraint("Horizontal", 8),
    Sketcher.Constraint("Vertical", 10),
    Sketcher.Constraint("Horizontal", 12),
    Sketcher.Constraint("Equal", 2, 4),
    Sketcher.Constraint("Equal", 4, 7),
    Sketcher.Constraint("Equal", 7, 9),
    Sketcher.Constraint("Equal", 9, 11),
    Sketcher.Constraint("Equal", 11, 13),
    Sketcher.Constraint("PointOnObject", 0, 2, -2),
    Sketcher.Constraint("Radius", 2, 1.0),
    Sketcher.Constraint("DistanceX", 1, 1, 1, 2, 1.0),
    Sketcher.Constraint("DistanceX", 3, 2, 6, 2, 8.0),
    Sketcher.Constraint("DistanceX", 6, 2, 9, 1, 2.5),
    Sketcher.Constraint("DistanceY", 0, 1, 0, 2, 54.0),
    Sketcher.Constraint("DistanceY", 6, 1, 6, 2, 6.0),
    Sketcher.Constraint("DistanceY", 2, 3, -1, 1, 29.0),
    Sketcher.Constraint("DistanceY", 7, 3, -1, 1, 88.0),
])
pocket4 = body.newObject("PartDesign::Pocket", "Pocket003")
pocket4.Profile = sketch6
pocket4.Length = 3
pocket4.Reversed = True

sketch7 = body.newObject("Sketcher::SketchObject", "Sketch006")
sketch7.AttachmentSupport = (doc.getObject("XZ_Plane"), [""])
sketch7.MapMode = "FlatFace"
sketch7.AttachmentOffset = App.Placement(App.Vector(0, 0, -20), App.Rotation())
sketch7.addGeometry([
    Part.LineSegment(App.Vector(-37.5, -31.5, 0), App.Vector(-37.5, -34.5, 0)),
    Part.LineSegment(App.Vector(-37.5, -34.5, 0), App.Vector(-59.5, -34.5, 0)),
    Part.LineSegment(App.Vector(-59.5, -34.5, 0), App.Vector(-59.5, -31.5, 0)),
    Part.LineSegment(App.Vector(-59.5, -31.5, 0), App.Vector(-37.5, -31.5, 0)),
    Part.LineSegment(App.Vector(-5.5, -34.5, 0), App.Vector(-27.5, -34.5, 0)),
    Part.LineSegment(App.Vector(-27.5, -34.5, 0), App.Vector(-27.5, -31.5, 0)),
    Part.LineSegment(App.Vector(-27.5, -31.5, 0), App.Vector(-5.5, -31.5, 0)),
    Part.LineSegment(App.Vector(-5.5, -31.5, 0), App.Vector(-5.5, -34.5, 0)),
    Part.LineSegment(App.Vector(-59.5, -75.5, 0), App.Vector(-37.5, -75.5, 0)),
    Part.LineSegment(App.Vector(-37.5, -75.5, 0), App.Vector(-37.5, -78.5, 0)),
    Part.LineSegment(App.Vector(-37.5, -78.5, 0), App.Vector(-59.5, -78.5, 0)),
    Part.LineSegment(App.Vector(-59.5, -78.5, 0), App.Vector(-59.5, -75.5, 0)),
    Part.LineSegment(App.Vector(-27.5, -78.5, 0), App.Vector(-27.5, -75.5, 0)),
    Part.LineSegment(App.Vector(-27.5, -75.5, 0), App.Vector(-5.5, -75.5, 0)),
    Part.LineSegment(App.Vector(-5.5, -75.5, 0), App.Vector(-5.5, -78.5, 0)),
    Part.LineSegment(App.Vector(-5.5, -78.5, 0), App.Vector(-27.5, -78.5, 0)),
], False)
sketch7.addConstraint([
    Sketcher.Constraint("Coincident", 0, 2, 1, 1),
    Sketcher.Constraint("Coincident", 1, 2, 2, 1),
    Sketcher.Constraint("Coincident", 2, 2, 3, 1),
    Sketcher.Constraint("Coincident", 3, 2, 0, 1),
    Sketcher.Constraint("Coincident", 4, 2, 5, 1),
    Sketcher.Constraint("Coincident", 5, 2, 6, 1),
    Sketcher.Constraint("Coincident", 6, 2, 7, 1),
    Sketcher.Constraint("Coincident", 7, 2, 4, 1),
    Sketcher.Constraint("Coincident", 8, 2, 9, 1),
    Sketcher.Constraint("Coincident", 9, 2, 10, 1),
    Sketcher.Constraint("Coincident", 10, 2, 11, 1),
    Sketcher.Constraint("Coincident", 11, 2, 8, 1),
    Sketcher.Constraint("Coincident", 12, 2, 13, 1),
    Sketcher.Constraint("Coincident", 13, 2, 14, 1),
    Sketcher.Constraint("Coincident", 14, 2, 15, 1),
    Sketcher.Constraint("Coincident", 15, 2, 12, 1),
    Sketcher.Constraint("Vertical", 0),
    Sketcher.Constraint("Horizontal", 1),
    Sketcher.Constraint("Vertical", 2),
    Sketcher.Constraint("Horizontal", 3),
    Sketcher.Constraint("Horizontal", 4),
    Sketcher.Constraint("Vertical", 5),
    Sketcher.Constraint("Horizontal", 6),
    Sketcher.Constraint("Vertical", 7),
    Sketcher.Constraint("Horizontal", 8),
    Sketcher.Constraint("Vertical", 9),
    Sketcher.Constraint("Horizontal", 10),
    Sketcher.Constraint("Vertical", 11),
    Sketcher.Constraint("Vertical", 12),
    Sketcher.Constraint("Horizontal", 13),
    Sketcher.Constraint("Vertical", 14),
    Sketcher.Constraint("Horizontal", 15),
    Sketcher.Constraint("Horizontal", 1, 2, 4, 2),
    Sketcher.Constraint("Horizontal", 3, 2, 5, 2),
    Sketcher.Constraint("Horizontal", 11, 2, 12, 2),
    Sketcher.Constraint("Horizontal", 10, 2, 14, 2),
    Sketcher.Constraint("Vertical", 3, 2, 8, 2),
    Sketcher.Constraint("Vertical", 2, 2, 10, 2),
    Sketcher.Constraint("Vertical", 5, 2, 12, 2),
    Sketcher.Constraint("Vertical", 7, 2, 13, 2),
    Sketcher.Constraint("Equal", 3, 4),
    Sketcher.Constraint("Equal", 7, 9),
    Sketcher.Constraint("DistanceX", 1, 2, 1, 1, 22.0),
    Sketcher.Constraint("DistanceY", 0, 2, 0, 1, 3.0),
    Sketcher.Constraint("DistanceX", 0, 2, 4, 2, 10.0),
    Sketcher.Constraint("DistanceY", 8, 2, 0, 2, 41.0),
    Sketcher.Constraint("DistanceX", 0, 2, -1, 1, 37.5),
    Sketcher.Constraint("DistanceY", 0, 2, -1, 1, 34.5),
])
pocket5 = body.newObject("PartDesign::Pocket", "Pocket004")
pocket5.Profile = sketch7
pocket5.Length = 3
pocket5.Reversed = True

sketch8 = body.newObject("Sketcher::SketchObject", "Sketch007")
sketch8.AttachmentSupport = (doc.getObject("XY_Plane"), [""])
sketch8.MapMode = "FlatFace"
sketch8.AttachmentOffset = App.Placement(App.Vector(0, 0, -110), App.Rotation())
sketch8.addGeometry([
    Part.LineSegment(App.Vector(-15.6, 13.9, 0), App.Vector(-15.6, 5.9, 0)),
    Part.ArcOfCircle(Part.Circle(App.Vector(-16.6, 5.9, 0), App.Vector(0, 0, 1), 1), math.radians(-90), math.radians(0)),
    Part.LineSegment(App.Vector(-16.6, 4.9, 0), App.Vector(-34.6, 4.9, 0)),
    Part.ArcOfCircle(Part.Circle(App.Vector(-34.6, 5.9, 0), App.Vector(0, 0, 1), 1), math.radians(180), math.radians(270)),
    Part.LineSegment(App.Vector(-35.6, 5.9, 0), App.Vector(-35.6, 13.9, 0)),
    Part.ArcOfCircle(Part.Circle(App.Vector(-34.6, 13.9, 0), App.Vector(0, 0, 1), 1), math.radians(90), math.radians(180)),
    Part.LineSegment(App.Vector(-34.6, 14.9, 0), App.Vector(-16.6, 14.9, 0)),
    Part.ArcOfCircle(Part.Circle(App.Vector(-16.6, 13.9, 0), App.Vector(0, 0, 1), 1), math.radians(0), math.radians(90)),
], False)
sketch8.addConstraint([
    Sketcher.Constraint("Tangent", 0, 2, 1, 2),
    Sketcher.Constraint("Tangent", 1, 1, 2, 1),
    Sketcher.Constraint("Tangent", 2, 2, 3, 2),
    Sketcher.Constraint("Tangent", 3, 1, 4, 1),
    Sketcher.Constraint("Tangent", 4, 2, 5, 2),
    Sketcher.Constraint("Tangent", 5, 1, 6, 1),
    Sketcher.Constraint("Tangent", 6, 2, 7, 2),
    Sketcher.Constraint("Tangent", 7, 1, 0, 1),
    Sketcher.Constraint("Vertical", 0),
    Sketcher.Constraint("Horizontal", 2),
    Sketcher.Constraint("Vertical", 4),
    Sketcher.Constraint("Horizontal", 6),
    Sketcher.Constraint("Equal", 1, 3),
    Sketcher.Constraint("Equal", 3, 5),
    Sketcher.Constraint("Equal", 5, 7),
    Sketcher.Constraint("Radius", 1, 1.0),
    Sketcher.Constraint("DistanceY", 2, 2, 5, 1, 10.0),
    Sketcher.Constraint("DistanceX", 2, 2, 2, 1, 18.0),
    Sketcher.Constraint("DistanceX", 1, 3, -1, 1, 16.5993),
    Sketcher.Constraint("DistanceY", -1, 1, 1, 3, 5.8762),
])
pocket6 = body.newObject("PartDesign::Pocket", "Pocket005")
pocket6.Profile = sketch8
pocket6.Length = 3
pocket6.Reversed = True

doc.recompute()
